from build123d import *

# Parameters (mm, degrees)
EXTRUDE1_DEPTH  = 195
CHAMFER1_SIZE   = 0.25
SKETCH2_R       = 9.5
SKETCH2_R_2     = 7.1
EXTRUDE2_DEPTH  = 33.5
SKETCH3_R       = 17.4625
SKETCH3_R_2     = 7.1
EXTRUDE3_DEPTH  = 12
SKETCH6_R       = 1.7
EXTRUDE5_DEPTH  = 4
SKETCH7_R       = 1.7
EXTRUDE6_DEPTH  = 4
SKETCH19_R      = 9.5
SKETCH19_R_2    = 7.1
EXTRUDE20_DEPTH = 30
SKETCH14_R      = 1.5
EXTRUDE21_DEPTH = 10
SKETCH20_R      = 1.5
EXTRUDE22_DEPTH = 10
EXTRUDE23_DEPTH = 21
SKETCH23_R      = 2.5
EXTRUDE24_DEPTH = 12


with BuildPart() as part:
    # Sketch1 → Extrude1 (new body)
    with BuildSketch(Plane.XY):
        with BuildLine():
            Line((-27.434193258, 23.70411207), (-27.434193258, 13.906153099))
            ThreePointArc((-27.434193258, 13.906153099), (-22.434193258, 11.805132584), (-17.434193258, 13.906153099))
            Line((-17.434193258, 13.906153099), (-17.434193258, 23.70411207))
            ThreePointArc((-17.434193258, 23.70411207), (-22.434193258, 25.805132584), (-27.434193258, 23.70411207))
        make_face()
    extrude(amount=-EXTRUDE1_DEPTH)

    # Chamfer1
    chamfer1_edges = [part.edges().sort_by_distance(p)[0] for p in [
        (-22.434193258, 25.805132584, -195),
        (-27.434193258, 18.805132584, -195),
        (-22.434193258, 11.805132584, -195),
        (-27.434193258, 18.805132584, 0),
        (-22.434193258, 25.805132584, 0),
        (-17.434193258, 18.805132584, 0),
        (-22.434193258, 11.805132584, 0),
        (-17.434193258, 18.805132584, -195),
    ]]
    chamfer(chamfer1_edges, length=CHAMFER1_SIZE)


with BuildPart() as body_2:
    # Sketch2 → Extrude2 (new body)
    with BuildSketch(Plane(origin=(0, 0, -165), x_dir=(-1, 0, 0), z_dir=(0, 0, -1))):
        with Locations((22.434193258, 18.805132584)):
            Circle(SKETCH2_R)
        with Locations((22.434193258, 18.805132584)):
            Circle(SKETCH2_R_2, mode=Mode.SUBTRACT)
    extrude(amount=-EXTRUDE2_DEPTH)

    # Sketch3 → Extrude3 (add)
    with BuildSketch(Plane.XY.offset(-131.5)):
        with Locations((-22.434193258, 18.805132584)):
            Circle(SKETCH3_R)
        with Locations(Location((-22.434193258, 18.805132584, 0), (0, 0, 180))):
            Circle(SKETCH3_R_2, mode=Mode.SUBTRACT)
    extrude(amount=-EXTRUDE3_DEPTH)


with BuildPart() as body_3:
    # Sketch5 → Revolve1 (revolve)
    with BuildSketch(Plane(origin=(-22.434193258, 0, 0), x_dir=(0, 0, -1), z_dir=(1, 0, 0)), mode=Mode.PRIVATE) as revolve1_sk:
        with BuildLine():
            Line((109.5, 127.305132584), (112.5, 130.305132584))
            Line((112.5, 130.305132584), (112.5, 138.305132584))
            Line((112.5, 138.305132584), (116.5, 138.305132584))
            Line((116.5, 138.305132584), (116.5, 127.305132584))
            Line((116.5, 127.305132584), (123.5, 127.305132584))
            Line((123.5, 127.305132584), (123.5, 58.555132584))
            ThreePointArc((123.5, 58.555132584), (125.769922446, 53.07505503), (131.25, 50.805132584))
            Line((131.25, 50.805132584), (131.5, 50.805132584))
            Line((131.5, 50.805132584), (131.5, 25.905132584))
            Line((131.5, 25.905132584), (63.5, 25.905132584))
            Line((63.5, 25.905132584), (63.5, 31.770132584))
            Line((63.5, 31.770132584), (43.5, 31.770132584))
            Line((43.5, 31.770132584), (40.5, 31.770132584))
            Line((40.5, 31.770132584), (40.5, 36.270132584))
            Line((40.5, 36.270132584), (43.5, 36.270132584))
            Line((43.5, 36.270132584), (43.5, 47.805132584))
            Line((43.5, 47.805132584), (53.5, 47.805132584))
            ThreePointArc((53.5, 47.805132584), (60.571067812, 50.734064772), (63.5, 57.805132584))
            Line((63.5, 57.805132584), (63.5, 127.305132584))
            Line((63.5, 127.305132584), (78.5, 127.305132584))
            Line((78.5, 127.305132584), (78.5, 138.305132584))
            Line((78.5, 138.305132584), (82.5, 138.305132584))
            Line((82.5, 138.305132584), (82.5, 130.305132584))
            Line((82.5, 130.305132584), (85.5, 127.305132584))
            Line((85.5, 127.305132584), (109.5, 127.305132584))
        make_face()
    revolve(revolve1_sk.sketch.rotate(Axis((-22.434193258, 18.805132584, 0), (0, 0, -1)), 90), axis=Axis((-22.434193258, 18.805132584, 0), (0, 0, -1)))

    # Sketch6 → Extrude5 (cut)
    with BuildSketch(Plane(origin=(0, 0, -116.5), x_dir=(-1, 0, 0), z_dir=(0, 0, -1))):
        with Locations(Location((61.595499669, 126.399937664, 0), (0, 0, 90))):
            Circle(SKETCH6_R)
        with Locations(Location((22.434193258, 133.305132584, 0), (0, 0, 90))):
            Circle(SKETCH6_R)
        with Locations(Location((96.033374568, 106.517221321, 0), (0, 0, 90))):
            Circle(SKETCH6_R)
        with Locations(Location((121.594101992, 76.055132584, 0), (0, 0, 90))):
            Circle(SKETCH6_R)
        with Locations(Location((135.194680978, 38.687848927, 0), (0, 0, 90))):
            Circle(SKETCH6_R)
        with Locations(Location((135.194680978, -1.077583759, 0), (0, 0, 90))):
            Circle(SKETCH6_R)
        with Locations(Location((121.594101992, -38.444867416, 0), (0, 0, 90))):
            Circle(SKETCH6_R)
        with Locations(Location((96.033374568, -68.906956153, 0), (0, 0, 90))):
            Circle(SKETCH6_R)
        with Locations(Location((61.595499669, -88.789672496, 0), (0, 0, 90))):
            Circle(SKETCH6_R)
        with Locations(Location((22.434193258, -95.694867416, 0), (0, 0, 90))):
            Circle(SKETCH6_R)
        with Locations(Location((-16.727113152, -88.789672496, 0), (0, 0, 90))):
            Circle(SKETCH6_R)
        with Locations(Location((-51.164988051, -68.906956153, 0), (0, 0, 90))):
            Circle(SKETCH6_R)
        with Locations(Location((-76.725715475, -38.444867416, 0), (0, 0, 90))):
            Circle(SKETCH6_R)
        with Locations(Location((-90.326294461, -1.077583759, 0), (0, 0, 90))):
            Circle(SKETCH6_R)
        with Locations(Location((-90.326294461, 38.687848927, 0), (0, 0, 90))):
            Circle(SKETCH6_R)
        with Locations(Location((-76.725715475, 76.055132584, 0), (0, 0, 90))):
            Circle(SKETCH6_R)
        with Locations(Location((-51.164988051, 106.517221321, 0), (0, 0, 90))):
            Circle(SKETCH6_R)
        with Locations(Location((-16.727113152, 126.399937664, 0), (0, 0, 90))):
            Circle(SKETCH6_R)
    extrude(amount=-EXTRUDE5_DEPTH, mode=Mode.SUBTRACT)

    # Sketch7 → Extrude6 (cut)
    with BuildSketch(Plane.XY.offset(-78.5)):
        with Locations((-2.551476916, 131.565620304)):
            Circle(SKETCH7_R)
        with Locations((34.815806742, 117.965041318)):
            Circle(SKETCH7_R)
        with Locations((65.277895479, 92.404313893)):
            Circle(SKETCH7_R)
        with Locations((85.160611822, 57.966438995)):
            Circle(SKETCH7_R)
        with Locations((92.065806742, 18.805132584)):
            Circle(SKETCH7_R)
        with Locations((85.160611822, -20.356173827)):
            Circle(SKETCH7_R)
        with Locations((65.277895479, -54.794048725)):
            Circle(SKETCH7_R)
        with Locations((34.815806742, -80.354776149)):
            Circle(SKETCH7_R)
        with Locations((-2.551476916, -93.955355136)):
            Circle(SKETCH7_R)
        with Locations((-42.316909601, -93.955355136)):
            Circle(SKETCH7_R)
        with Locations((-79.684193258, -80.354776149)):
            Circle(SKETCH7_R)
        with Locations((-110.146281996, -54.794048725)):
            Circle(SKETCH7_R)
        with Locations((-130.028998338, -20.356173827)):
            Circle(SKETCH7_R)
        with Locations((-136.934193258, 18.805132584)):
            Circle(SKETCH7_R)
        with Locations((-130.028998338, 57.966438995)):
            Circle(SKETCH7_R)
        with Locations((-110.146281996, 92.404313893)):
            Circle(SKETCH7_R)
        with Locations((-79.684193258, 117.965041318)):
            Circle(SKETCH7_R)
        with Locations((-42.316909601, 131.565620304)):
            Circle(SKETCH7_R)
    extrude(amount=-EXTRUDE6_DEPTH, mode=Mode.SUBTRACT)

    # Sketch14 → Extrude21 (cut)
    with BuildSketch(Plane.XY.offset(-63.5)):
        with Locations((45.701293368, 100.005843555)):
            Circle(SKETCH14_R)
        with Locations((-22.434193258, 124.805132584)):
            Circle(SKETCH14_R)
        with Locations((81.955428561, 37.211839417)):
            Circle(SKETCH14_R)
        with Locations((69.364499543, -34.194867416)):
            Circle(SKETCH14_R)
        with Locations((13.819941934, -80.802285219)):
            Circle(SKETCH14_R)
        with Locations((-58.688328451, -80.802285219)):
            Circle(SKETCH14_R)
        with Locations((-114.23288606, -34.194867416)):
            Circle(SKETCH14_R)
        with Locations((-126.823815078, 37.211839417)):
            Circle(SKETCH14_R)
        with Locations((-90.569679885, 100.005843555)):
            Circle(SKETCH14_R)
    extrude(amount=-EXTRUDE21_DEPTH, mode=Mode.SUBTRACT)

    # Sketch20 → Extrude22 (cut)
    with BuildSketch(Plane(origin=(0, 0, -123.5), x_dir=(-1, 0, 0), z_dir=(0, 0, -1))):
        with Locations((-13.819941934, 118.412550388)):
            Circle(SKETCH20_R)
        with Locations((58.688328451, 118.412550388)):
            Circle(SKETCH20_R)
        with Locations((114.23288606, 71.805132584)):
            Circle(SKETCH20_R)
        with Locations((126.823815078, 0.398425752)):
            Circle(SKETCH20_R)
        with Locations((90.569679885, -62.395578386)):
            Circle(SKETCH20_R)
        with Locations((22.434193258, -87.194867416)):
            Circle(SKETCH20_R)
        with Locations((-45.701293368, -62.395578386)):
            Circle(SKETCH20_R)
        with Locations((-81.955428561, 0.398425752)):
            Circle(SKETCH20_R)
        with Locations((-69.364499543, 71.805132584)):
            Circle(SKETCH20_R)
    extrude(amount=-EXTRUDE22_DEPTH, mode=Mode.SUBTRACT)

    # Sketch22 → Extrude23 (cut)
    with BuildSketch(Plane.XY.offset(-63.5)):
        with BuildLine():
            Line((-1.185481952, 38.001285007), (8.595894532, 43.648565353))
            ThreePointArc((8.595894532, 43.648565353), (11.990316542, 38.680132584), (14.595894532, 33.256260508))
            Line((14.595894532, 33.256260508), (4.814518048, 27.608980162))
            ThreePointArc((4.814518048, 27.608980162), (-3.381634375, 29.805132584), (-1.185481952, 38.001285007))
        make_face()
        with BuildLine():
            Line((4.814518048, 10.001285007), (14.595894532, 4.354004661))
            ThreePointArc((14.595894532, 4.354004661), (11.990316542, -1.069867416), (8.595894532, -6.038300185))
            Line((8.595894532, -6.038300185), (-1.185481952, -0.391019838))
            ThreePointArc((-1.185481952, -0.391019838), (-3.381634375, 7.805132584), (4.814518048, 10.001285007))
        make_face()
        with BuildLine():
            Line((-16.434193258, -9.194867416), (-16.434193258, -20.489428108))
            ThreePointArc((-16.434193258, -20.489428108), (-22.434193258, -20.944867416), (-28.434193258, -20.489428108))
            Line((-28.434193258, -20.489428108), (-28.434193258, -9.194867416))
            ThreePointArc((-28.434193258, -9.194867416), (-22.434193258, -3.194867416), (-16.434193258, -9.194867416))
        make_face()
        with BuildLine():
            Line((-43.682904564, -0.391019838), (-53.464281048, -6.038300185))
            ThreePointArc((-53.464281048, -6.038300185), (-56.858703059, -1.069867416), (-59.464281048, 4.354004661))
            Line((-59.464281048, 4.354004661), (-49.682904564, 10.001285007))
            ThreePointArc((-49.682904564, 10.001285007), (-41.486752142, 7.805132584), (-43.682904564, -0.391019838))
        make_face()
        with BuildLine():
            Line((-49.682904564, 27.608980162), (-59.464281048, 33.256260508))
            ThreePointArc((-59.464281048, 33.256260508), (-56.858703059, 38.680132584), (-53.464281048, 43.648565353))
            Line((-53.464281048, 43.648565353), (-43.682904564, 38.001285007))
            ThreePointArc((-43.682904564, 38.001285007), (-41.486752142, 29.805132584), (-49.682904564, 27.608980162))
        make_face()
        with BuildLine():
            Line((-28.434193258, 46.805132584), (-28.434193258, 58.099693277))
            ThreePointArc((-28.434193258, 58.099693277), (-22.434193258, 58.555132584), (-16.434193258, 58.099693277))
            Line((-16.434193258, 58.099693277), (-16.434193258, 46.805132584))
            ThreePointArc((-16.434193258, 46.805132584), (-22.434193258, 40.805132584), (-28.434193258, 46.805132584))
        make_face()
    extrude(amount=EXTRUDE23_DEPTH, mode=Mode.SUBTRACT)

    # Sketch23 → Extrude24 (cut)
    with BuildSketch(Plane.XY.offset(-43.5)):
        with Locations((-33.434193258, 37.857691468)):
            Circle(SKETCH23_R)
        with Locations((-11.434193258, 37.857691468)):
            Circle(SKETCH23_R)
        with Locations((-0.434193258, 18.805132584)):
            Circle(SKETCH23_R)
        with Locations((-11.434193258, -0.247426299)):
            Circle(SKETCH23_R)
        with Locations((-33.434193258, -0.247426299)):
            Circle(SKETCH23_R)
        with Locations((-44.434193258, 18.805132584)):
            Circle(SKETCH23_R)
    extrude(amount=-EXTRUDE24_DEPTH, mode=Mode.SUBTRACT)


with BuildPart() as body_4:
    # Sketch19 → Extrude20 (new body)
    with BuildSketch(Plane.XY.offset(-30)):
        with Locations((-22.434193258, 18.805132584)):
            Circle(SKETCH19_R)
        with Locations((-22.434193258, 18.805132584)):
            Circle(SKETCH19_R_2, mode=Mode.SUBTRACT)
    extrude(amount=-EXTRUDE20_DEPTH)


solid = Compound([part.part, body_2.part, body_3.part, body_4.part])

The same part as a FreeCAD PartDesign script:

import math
import FreeCAD as App
import Part
import Sketcher
from FreeCAD import Vector
Q = App.Units.Quantity


def edges_at(feature, points):
    """Names of the edges that pass closest to the given points."""
    edges = feature.Shape.Edges
    near = lambda p: min(range(len(edges)), key=lambda i: edges[i].distToShape(Part.Vertex(*p))[0])
    return sorted({f"Edge{near(p) + 1}" for p in points})

doc = App.newDocument("Part")
params = doc.addObject("Spreadsheet::Sheet", "Params")
for row, (alias, value) in enumerate([
    ("sketch1_radius", "7 mm"),
    ("pad1_length", "195 mm"),
    ("chamfer_size", "0.25 mm"),
    ("sketch2_diameter", "19 mm"),
    ("sketch2_diameter2", "14.2 mm"),
    ("pad2_length", "33.5 mm"),
    ("sketch3_diameter", "14.2 mm"),
    ("pad3_length", "12 mm"),
    ("sketch4_radius", "10 mm"),
    ("sketch4_width", "8 mm"),
    ("sketch4_width2", "11 mm"),
    ("sketch4_height", "24 mm"),
    ("sketch4_height2", "4 mm"),
    ("revolution_angle", "360 deg"),
    ("sketch5_diameter", "3.4 mm"),
    ("pocket1_length", "4 mm"),
    ("sketch6_diameter", "3.4 mm"),
    ("pocket2_length", "4 mm"),
    ("sketch7_diameter", "3 mm"),
    ("pocket3_length", "10 mm"),
    ("sketch8_diameter", "3 mm"),
    ("pocket4_length", "10 mm"),
    ("sketch9_radius", "6 mm"),
    ("sketch9_radius2", "39.75 mm"),
    ("pocket5_length", "21 mm"),
    ("sketch10_diameter", "5 mm"),
    ("pocket6_length", "12 mm"),
    ("sketch11_diameter", "19 mm"),
    ("sketch11_diameter2", "14.2 mm"),
    ("pad4_length", "30 mm"),
], start=1):
    params.set(f"A{row}", alias)
    params.set(f"B{row}", "=" + value)
    params.setAlias(f"B{row}", alias)

body = doc.addObject("PartDesign::Body", "Body")

sketch1 = doc.addObject("Sketcher::SketchObject", "Sketch")
body.addObject(sketch1)
sketch1.AttachmentSupport = (doc.XY_Plane, [""])
sketch1.MapMode = "FlatFace"
sketch1.addGeometry([
    Part.LineSegment(Vector(-27.434193, 23.704112, 0), Vector(-27.434193, 13.906153, 0)),
    Part.ArcOfCircle(Part.Circle(Vector(-22.434193, 18.805133, 0), Vector(0, 0, 1), 7), math.radians(-135.584691), math.radians(-44.415309)),
    Part.LineSegment(Vector(-17.434193, 13.906153, 0), Vector(-17.434193, 23.704112, 0)),
    Part.ArcOfCircle(Part.Circle(Vector(-22.434193, 18.805133, 0), Vector(0, 0, 1), 7), math.radians(44.415309), math.radians(135.584691)),
], False)
sketch1.addConstraint([
    Sketcher.Constraint("Coincident", 0, 2, 1, 1),
    Sketcher.Constraint("Coincident", 1, 2, 2, 1),
    Sketcher.Constraint("Coincident", 2, 2, 3, 1),
    Sketcher.Constraint("Coincident", 3, 2, 0, 1),
    Sketcher.Constraint("Vertical", 0),
    Sketcher.Constraint("Vertical", 2),
    Sketcher.Constraint("Coincident", 3, 3, 1, 3),
    Sketcher.Constraint("Equal", 1, 3),
    Sketcher.Constraint("Horizontal", 0, 2, 1, 2),
    Sketcher.Constraint("Radius", 1, Q("7 mm")),
    Sketcher.Constraint("DistanceX", 0, 2, 1, 3, Q("5 mm")),
    Sketcher.Constraint("DistanceX", 1, 3, -1, 1, Q("22.434193 mm")),
    Sketcher.Constraint("DistanceY", -1, 1, 1, 3, Q("18.805133 mm")),
])
sketch1.setExpression("Constraints[9]", "Params.sketch1_radius")
pad1 = doc.addObject("PartDesign::Pad", "Pad")
body.addObject(pad1)
pad1.Profile = sketch1
pad1.setExpression("Length", "Params.pad1_length")
pad1.Reversed = True
doc.recompute()

chamfer = doc.addObject("PartDesign::Chamfer", "Chamfer")
body.addObject(chamfer)
chamfer.Base = (pad1, edges_at(pad1, [
    (-22.434, 25.805, -195),
    (-27.434, 18.805, -195),
    (-22.434, 11.805, -195),
    (-27.434, 18.805, 0),
    (-22.434, 25.805, 0),
    (-17.434, 18.805, 0),
    (-22.434, 11.805, 0),
    (-17.434, 18.805, -195),
]))
chamfer.setExpression("Size", "Params.chamfer_size")
body2 = doc.addObject("PartDesign::Body", "Body001")

sketch2 = doc.addObject("Sketcher::SketchObject", "Sketch001")
body2.addObject(sketch2)
sketch2.AttachmentSupport = (doc.getObject("XY_Plane001"), [""])
sketch2.MapMode = "FlatFace"
sketch2.AttachmentOffset = App.Placement(Vector(0, 0, -165), App.Rotation())
sketch2.addGeometry([
    Part.Circle(Vector(-22.434193, 18.805133, 0), Vector(0, 0, 1), 9.5),
    Part.Circle(Vector(-22.434193, 18.805133, 0), Vector(0, 0, 1), 7.1),
], False)
sketch2.addConstraint([
    Sketcher.Constraint("Coincident", 1, 3, 0, 3),
    Sketcher.Constraint("Diameter", 0, Q("19 mm")),
    Sketcher.Constraint("Diameter", 1, Q("14.2 mm")),
    Sketcher.Constraint("DistanceX", 0, 3, -1, 1, Q("22.434193 mm")),
    Sketcher.Constraint("DistanceY", -1, 1, 0, 3, Q("18.805133 mm")),
])
sketch2.setExpression("Constraints[1]", "Params.sketch2_diameter")
sketch2.setExpression("Constraints[2]", "Params.sketch2_diameter2")
pad2 = doc.addObject("PartDesign::Pad", "Pad001")
body2.addObject(pad2)
pad2.Profile = sketch2
pad2.setExpression("Length", "Params.pad2_length")

sketch3 = doc.addObject("Sketcher::SketchObject", "Sketch002")
body2.addObject(sketch3)
sketch3.AttachmentSupport = (doc.getObject("XY_Plane001"), [""])
sketch3.MapMode = "FlatFace"
sketch3.AttachmentOffset = App.Placement(Vector(0, 0, -131.5), App.Rotation())
sketch3.addGeometry([
    Part.Circle(Vector(-22.434193, 18.805133, 0), Vector(0, 0, 1), 17.4625),
    Part.Circle(Vector(-22.434193, 18.805133, 0), Vector(0, 0, 1), 7.1),
], False)
sketch3.addConstraint([
    Sketcher.Constraint("Coincident", 1, 3, 0, 3),
    Sketcher.Constraint("Diameter", 1, Q("14.2 mm")),
    Sketcher.Constraint("Diameter", 0, Q("34.925 mm")),
    Sketcher.Constraint("DistanceX", 0, 3, -1, 1, Q("22.434193 mm")),
    Sketcher.Constraint("DistanceY", -1, 1, 0, 3, Q("18.805133 mm")),
])
sketch3.setExpression("Constraints[1]", "Params.sketch3_diameter")
pad3 = doc.addObject("PartDesign::Pad", "Pad002")
body2.addObject(pad3)
pad3.Profile = sketch3
pad3.setExpression("Length", "Params.pad3_length")
pad3.Reversed = True
body3 = doc.addObject("PartDesign::Body", "Body002")

sketch4 = doc.addObject("Sketcher::SketchObject", "Sketch003")
body3.addObject(sketch4)
sketch4.AttachmentSupport = (doc.getObject("YZ_Plane002"), [""])
sketch4.MapMode = "FlatFace"
sketch4.AttachmentOffset = App.Placement(Vector(0, 0, -22.434193), App.Rotation())
sketch4.addGeometry([
    Part.LineSegment(Vector(130.305133, -112.5, 0), Vector(127.305133, -109.5, 0)),
    Part.LineSegment(Vector(127.305133, -109.5, 0), Vector(127.305133, -85.5, 0)),
    Part.LineSegment(Vector(127.305133, -85.5, 0), Vector(130.305133, -82.5, 0)),
    Part.LineSegment(Vector(130.305133, -82.5, 0), Vector(138.305133, -82.5, 0)),
    Part.LineSegment(Vector(138.305133, -82.5, 0), Vector(138.305133, -78.5, 0)),
    Part.LineSegment(Vector(138.305133, -78.5, 0), Vector(127.305133, -78.5, 0)),
    Part.LineSegment(Vector(127.305133, -78.5, 0), Vector(127.305133, -63.5, 0)),
    Part.LineSegment(Vector(127.305133, -63.5, 0), Vector(57.805133, -63.5, 0)),
    Part.ArcOfCircle(Part.Circle(Vector(57.805133, -53.5, 0), Vector(0, 0, 1), 10), math.radians(180), math.radians(270)),
    Part.LineSegment(Vector(47.805133, -53.5, 0), Vector(47.805133, -43.5, 0)),
    Part.LineSegment(Vector(47.805133, -43.5, 0), Vector(36.270133, -43.5, 0)),
    Part.LineSegment(Vector(36.270133, -43.5, 0), Vector(36.270133, -40.5, 0)),
    Part.LineSegment(Vector(36.270133, -40.5, 0), Vector(31.770133, -40.5, 0)),
    Part.LineSegment(Vector(31.770133, -40.5, 0), Vector(31.770133, -63.5, 0)),
    Part.LineSegment(Vector(31.770133, -63.5, 0), Vector(25.905133, -63.5, 0)),
    Part.LineSegment(Vector(25.905133, -63.5, 0), Vector(25.905133, -131.5, 0)),
    Part.LineSegment(Vector(25.905133, -131.5, 0), Vector(50.805133, -131.5, 0)),
    Part.LineSegment(Vector(50.805133, -131.5, 0), Vector(50.805133, -131.25, 0)),
    Part.ArcOfCircle(Part.Circle(Vector(58.555133, -131.25, 0), Vector(0, 0, 1), 7.75), math.radians(90), math.radians(180)),
    Part.LineSegment(Vector(58.555133, -123.5, 0), Vector(127.305133, -123.5, 0)),
    Part.LineSegment(Vector(127.305133, -123.5, 0), Vector(127.305133, -116.5, 0)),
    Part.LineSegment(Vector(127.305133, -116.5, 0), Vector(138.305133, -116.5, 0)),
    Part.LineSegment(Vector(138.305133, -116.5, 0), Vector(138.305133, -112.5, 0)),
    Part.LineSegment(Vector(138.305133, -112.5, 0), Vector(130.305133, -112.5, 0)),
], False)
sketch4.addGeometry(Part.LineSegment(Vector(18.805133, -40.5, 0), Vector(18.805133, -131.5, 0)), True)
sketch4.addConstraint([
    Sketcher.Constraint("Coincident", 0, 2, 1, 1),
    Sketcher.Constraint("Coincident", 1, 2, 2, 1),
    Sketcher.Constraint("Coincident", 2, 2, 3, 1),
    Sketcher.Constraint("Coincident", 3, 2, 4, 1),
    Sketcher.Constraint("Coincident", 4, 2, 5, 1),
    Sketcher.Constraint("Coincident", 5, 2, 6, 1),
    Sketcher.Constraint("Coincident", 6, 2, 7, 1),
    Sketcher.Constraint("Tangent", 7, 2, 8, 2),
    Sketcher.Constraint("Tangent", 8, 1, 9, 1),
    Sketcher.Constraint("Coincident", 9, 2, 10, 1),
    Sketcher.Constraint("Coincident", 10, 2, 11, 1),
    Sketcher.Constraint("Coincident", 11, 2, 12, 1),
    Sketcher.Constraint("Coincident", 12, 2, 13, 1),
    Sketcher.Constraint("Coincident", 13, 2, 14, 1),
    Sketcher.Constraint("Coincident", 14, 2, 15, 1),
    Sketcher.Constraint("Coincident", 15, 2, 16, 1),
    Sketcher.Constraint("Coincident", 16, 2, 17, 1),
    Sketcher.Constraint("Tangent", 17, 2, 18, 2),
    Sketcher.Constraint("Tangent", 18, 1, 19, 1),
    Sketcher.Constraint("Coincident", 19, 2, 20, 1),
    Sketcher.Constraint("Coincident", 20, 2, 21, 1),
    Sketcher.Constraint("Coincident", 21, 2, 22, 1),
    Sketcher.Constraint("Coincident", 22, 2, 23, 1),
    Sketcher.Constraint("Coincident", 23, 2, 0, 1),
    Sketcher.Constraint("Vertical", 1),
    Sketcher.Constraint("Horizontal", 3),
    Sketcher.Constraint("Vertical", 4),
    Sketcher.Constraint("Horizontal", 5),
    Sketcher.Constraint("Vertical", 6),
    Sketcher.Constraint("Horizontal", 7),
    Sketcher.Constraint("Vertical", 9),
    Sketcher.Constraint("Horizontal", 10),
    Sketcher.Constraint("Vertical", 11),
    Sketcher.Constraint("Horizontal", 12),
    Sketcher.Constraint("Vertical", 13),
    Sketcher.Constraint("Horizontal", 14),
    Sketcher.Constraint("Vertical", 15),
    Sketcher.Constraint("Horizontal", 16),
    Sketcher.Constraint("Vertical", 17),
    Sketcher.Constraint("Horizontal", 19),
    Sketcher.Constraint("Vertical", 20),
    Sketcher.Constraint("Horizontal", 21),
    Sketcher.Constraint("Vertical", 22),
    Sketcher.Constraint("Horizontal", 23),
    Sketcher.Constraint("Vertical", 24),
    Sketcher.Constraint("Perpendicular", 0, 2),
    Sketcher.Constraint("Horizontal", 7, 2, 13, 2),
    Sketcher.Constraint("Horizontal", 12, 2, 24, 1),
    Sketcher.Constraint("Horizontal", 16, 2, 24, 2),
    Sketcher.Constraint("Vertical", 1, 2, 5, 2),
    Sketcher.Constraint("Vertical", 6, 2, 19, 2),
    Sketcher.Constraint("Vertical", 4, 2, 21, 2),
    Sketcher.Constraint("Vertical", 2, 2, 23, 2),
    Sketcher.Constraint("Equal", 4, 22),
    Sketcher.Constraint("Equal", 0, 2),
    Sketcher.Constraint("Radius", 8, Q("10 mm")),
    Sketcher.Constraint("DistanceX", 3, 1, 3, 2, Q("8 mm")),
    Sketcher.Constraint("DistanceX", 5, 2, 5, 1, Q("11 mm")),
    Sketcher.Constraint("DistanceY", 1, 1, 1, 2, Q("24 mm")),
    Sketcher.Constraint("DistanceY", 4, 1, 4, 2, Q("4 mm")),
    Sketcher.Constraint("DistanceY", 6, 1, 6, 2, Q("15 mm")),
    Sketcher.Constraint("DistanceY", 9, 1, 9, 2, Q("10 mm")),
    Sketcher.Constraint("DistanceY", 11, 1, 11, 2, Q("3 mm")),
    Sketcher.Constraint("DistanceY", 15, 2, 15, 1, Q("68 mm")),
    Sketcher.Constraint("DistanceY", 20, 1, 20, 2, Q("7 mm")),
    Sketcher.Constraint("Radius", 18, Q("7.75 mm")),
    Sketcher.Constraint("DistanceX", 7, 2, 7, 1, Q("69.5 mm")),
    Sketcher.Constraint("DistanceX", 12, 2, 12, 1, Q("4.5 mm")),
    Sketcher.Constraint("DistanceX", 16, 1, 16, 2, Q("24.9 mm")),
    Sketcher.Constraint("DistanceX", 16, 2, 7, 2, Q("7 mm")),
    Sketcher.Constraint("DistanceX", 24, 2, 16, 2, Q("32 mm")),
    Sketcher.Constraint("DistanceY", 8, 3, -1, 1, Q("53.5 mm")),
    Sketcher.Constraint("DistanceX", 10, 2, 10, 1, Q("11.535 mm")),
    Sketcher.Constraint("DistanceX", -1, 1, 8, 3, Q("57.805133 mm")),
])
sketch4.setExpression("Constraints[55]", "Params.sketch4_radius")
sketch4.setExpression("Constraints[56]", "Params.sketch4_width")
sketch4.setExpression("Constraints[57]", "Params.sketch4_width2")
sketch4.setExpression("Constraints[58]", "Params.sketch4_height")
sketch4.setExpression("Constraints[59]", "Params.sketch4_height2")
revolution = doc.addObject("PartDesign::Revolution", "Revolution")
body3.addObject(revolution)
revolution.Profile = sketch4
revolution.ReferenceAxis = (sketch4, ["Axis0"])
revolution.setExpression("Angle", "Params.revolution_angle")

sketch5 = doc.addObject("Sketcher::SketchObject", "Sketch004")
body3.addObject(sketch5)
sketch5.AttachmentSupport = (doc.getObject("XY_Plane002"), [""])
sketch5.MapMode = "FlatFace"
sketch5.AttachmentOffset = App.Placement(Vector(0, 0, -116.5), App.Rotation())
sketch5.addGeometry([
    Part.Circle(Vector(-61.5955, 126.399938, 0), Vector(0, 0, 1), 1.7),
    Part.Circle(Vector(-22.434193, 133.305133, 0), Vector(0, 0, 1), 1.7),
    Part.Circle(Vector(-96.033375, 106.517221, 0), Vector(0, 0, 1), 1.7),
    Part.Circle(Vector(-121.594102, 76.055133, 0), Vector(0, 0, 1), 1.7),
    Part.Circle(Vector(-135.194681, 38.687849, 0), Vector(0, 0, 1), 1.7),
    Part.Circle(Vector(-135.194681, -1.077584, 0), Vector(0, 0, 1), 1.7),
    Part.Circle(Vector(-121.594102, -38.444867, 0), Vector(0, 0, 1), 1.7),
    Part.Circle(Vector(-96.033375, -68.906956, 0), Vector(0, 0, 1), 1.7),
    Part.Circle(Vector(-61.5955, -88.789672, 0), Vector(0, 0, 1), 1.7),
    Part.Circle(Vector(-22.434193, -95.694867, 0), Vector(0, 0, 1), 1.7),
    Part.Circle(Vector(16.727113, -88.789672, 0), Vector(0, 0, 1), 1.7),
    Part.Circle(Vector(51.164988, -68.906956, 0), Vector(0, 0, 1), 1.7),
    Part.Circle(Vector(76.725715, -38.444867, 0), Vector(0, 0, 1), 1.7),
    Part.Circle(Vector(90.326294, -1.077584, 0), Vector(0, 0, 1), 1.7),
    Part.Circle(Vector(90.326294, 38.687849, 0), Vector(0, 0, 1), 1.7),
    Part.Circle(Vector(76.725715, 76.055133, 0), Vector(0, 0, 1), 1.7),
    Part.Circle(Vector(51.164988, 106.517221, 0), Vector(0, 0, 1), 1.7),
    Part.Circle(Vector(16.727113, 126.399938, 0), Vector(0, 0, 1), 1.7),
], False)
sketch5.addConstraint([
    Sketcher.Constraint("Equal", 0, 1),
    Sketcher.Constraint("Equal", 1, 2),
    Sketcher.Constraint("Equal", 2, 3),
    Sketcher.Constraint("Equal", 3, 4),
    Sketcher.Constraint("Equal", 4, 5),
    Sketcher.Constraint("Equal", 5, 6),
    Sketcher.Constraint("Equal", 6, 7),
    Sketcher.Constraint("Equal", 7, 8),
    Sketcher.Constraint("Equal", 8, 9),
    Sketcher.Constraint("Equal", 9, 10),
    Sketcher.Constraint("Equal", 10, 11),
    Sketcher.Constraint("Equal", 11, 12),
    Sketcher.Constraint("Equal", 12, 13),
    Sketcher.Constraint("Equal", 13, 14),
    Sketcher.Constraint("Equal", 14, 15),
    Sketcher.Constraint("Equal", 15, 16),
    Sketcher.Constraint("Equal", 16, 17),
    Sketcher.Constraint("Horizontal", 8, 3, 10, 3),
    Sketcher.Constraint("Horizontal", 7, 3, 11, 3),
    Sketcher.Constraint("Horizontal", 6, 3, 12, 3),
    Sketcher.Constraint("Horizontal", 5, 3, 13, 3),
    Sketcher.Constraint("Horizontal", 4, 3, 14, 3),
    Sketcher.Constraint("Horizontal", 3, 3, 15, 3),
    Sketcher.Constraint("Horizontal", 2, 3, 16, 3),
    Sketcher.Constraint("Horizontal", 0, 3, 17, 3),
    Sketcher.Constraint("Vertical", 4, 3, 5, 3),
    Sketcher.Constraint("Vertical", 3, 3, 6, 3),
    Sketcher.Constraint("Vertical", 2, 3, 7, 3),
    Sketcher.Constraint("Vertical", 0, 3, 8, 3),
    Sketcher.Constraint("Vertical", 1, 3, 9, 3),
    Sketcher.Constraint("Vertical", 13, 3, 14, 3),
    Sketcher.Constraint("Vertical", 12, 3, 15, 3),
    Sketcher.Constraint("Vertical", 11, 3, 16, 3),
    Sketcher.Constraint("Vertical", 10, 3, 17, 3),
    Sketcher.Constraint("Diameter", 0, Q("3.4 mm")),
    Sketcher.Constraint("DistanceY", 6, 3, 3, 3, Q("114.5 mm")),
    Sketcher.Constraint("DistanceY", 3, 3, 1, 3, Q("57.25 mm")),
    Sketcher.Constraint("DistanceY", 9, 3, 6, 3, Q("57.25 mm")),
    Sketcher.Constraint("DistanceX", 0, 3, -1, 1, Q("61.5955 mm")),
    Sketcher.Constraint("DistanceX", 3, 3, -1, 1, Q("121.594102 mm")),
    Sketcher.Constraint("DistanceY", -1, 1, 2, 3, Q("106.517221 mm")),
    Sketcher.Constraint("DistanceX", 4, 3, -1, 1, Q("135.194681 mm")),
    Sketcher.Constraint("DistanceY", -1, 1, 4, 3, Q("38.687849 mm")),
    Sketcher.Constraint("DistanceX", -1, 1, 11, 3, Q("51.164988 mm")),
    Sketcher.Constraint("DistanceX", 2, 3, 1, 3, Q("73.599181 mm")),
    Sketcher.Constraint("DistanceY", 2, 3, 1, 3, Q("26.787911 mm")),
    Sketcher.Constraint("DistanceX", 3, 3, 1, 3, Q("99.159909 mm")),
    Sketcher.Constraint("DistanceY", 4, 3, 0, 3, Q("87.712089 mm")),
    Sketcher.Constraint("DistanceY", 5, 3, 0, 3, Q("127.477521 mm")),
    Sketcher.Constraint("DistanceY", 7, 3, 6, 3, Q("30.462089 mm")),
    Sketcher.Constraint("DistanceY", 8, 3, 5, 3, Q("87.712089 mm")),
    Sketcher.Constraint("DistanceX", 9, 3, 12, 3, Q("99.159909 mm")),
    Sketcher.Constraint("DistanceX", 12, 3, 13, 3, Q("13.600579 mm")),
    Sketcher.Constraint("DistanceX", 10, 3, 13, 3, Q("73.599181 mm")),
])
sketch5.setExpression("Constraints[34]", "Params.sketch5_diameter")
pocket1 = doc.addObject("PartDesign::Pocket", "Pocket")
body3.addObject(pocket1)
pocket1.Profile = sketch5
pocket1.setExpression("Length", "Params.pocket1_length")
pocket1.Reversed = True

sketch6 = doc.addObject("Sketcher::SketchObject", "Sketch005")
body3.addObject(sketch6)
sketch6.AttachmentSupport = (doc.getObject("XY_Plane002"), [""])
sketch6.MapMode = "FlatFace"
sketch6.AttachmentOffset = App.Placement(Vector(0, 0, -78.5), App.Rotation())
sketch6.addGeometry([
    Part.Circle(Vector(-2.551477, 131.56562, 0), Vector(0, 0, 1), 1.7),
    Part.Circle(Vector(34.815807, 117.965041, 0), Vector(0, 0, 1), 1.7),
    Part.Circle(Vector(65.277895, 92.404314, 0), Vector(0, 0, 1), 1.7),
    Part.Circle(Vector(85.160612, 57.966439, 0), Vector(0, 0, 1), 1.7),
    Part.Circle(Vector(92.065807, 18.805133, 0), Vector(0, 0, 1), 1.7),
    Part.Circle(Vector(85.160612, -20.356174, 0), Vector(0, 0, 1), 1.7),
    Part.Circle(Vector(65.277895, -54.794049, 0), Vector(0, 0, 1), 1.7),
    Part.Circle(Vector(34.815807, -80.354776, 0), Vector(0, 0, 1), 1.7),
    Part.Circle(Vector(-2.551477, -93.955355, 0), Vector(0, 0, 1), 1.7),
    Part.Circle(Vector(-42.31691, -93.955355, 0), Vector(0, 0, 1), 1.7),
    Part.Circle(Vector(-79.684193, -80.354776, 0), Vector(0, 0, 1), 1.7),
    Part.Circle(Vector(-110.146282, -54.794049, 0), Vector(0, 0, 1), 1.7),
    Part.Circle(Vector(-130.028998, -20.356174, 0), Vector(0, 0, 1), 1.7),
    Part.Circle(Vector(-136.934193, 18.805133, 0), Vector(0, 0, 1), 1.7),
    Part.Circle(Vector(-130.028998, 57.966439, 0), Vector(0, 0, 1), 1.7),
    Part.Circle(Vector(-110.146282, 92.404314, 0), Vector(0, 0, 1), 1.7),
    Part.Circle(Vector(-79.684193, 117.965041, 0), Vector(0, 0, 1), 1.7),
    Part.Circle(Vector(-42.31691, 131.56562, 0), Vector(0, 0, 1), 1.7),
], False)
sketch6.addConstraint([
    Sketcher.Constraint("Equal", 0, 1),
    Sketcher.Constraint("Equal", 1, 2),
    Sketcher.Constraint("Equal", 2, 3),
    Sketcher.Constraint("Equal", 3, 4),
    Sketcher.Constraint("Equal", 4, 5),
    Sketcher.Constraint("Equal", 5, 6),
    Sketcher.Constraint("Equal", 6, 7),
    Sketcher.Constraint("Equal", 7, 8),
    Sketcher.Constraint("Equal", 8, 9),
    Sketcher.Constraint("Equal", 9, 10),
    Sketcher.Constraint("Equal", 10, 11),
    Sketcher.Constraint("Equal", 11, 12),
    Sketcher.Constraint("Equal", 12, 13),
    Sketcher.Constraint("Equal", 13, 14),
    Sketcher.Constraint("Equal", 14, 15),
    Sketcher.Constraint("Equal", 15, 16),
    Sketcher.Constraint("Equal", 16, 17),
    Sketcher.Constraint("Horizontal", 8, 3, 9, 3),
    Sketcher.Constraint("Horizontal", 7, 3, 10, 3),
    Sketcher.Constraint("Horizontal", 6, 3, 11, 3),
    Sketcher.Constraint("Horizontal", 5, 3, 12, 3),
    Sketcher.Constraint("Horizontal", 4, 3, 13, 3),
    Sketcher.Constraint("Horizontal", 3, 3, 14, 3),
    Sketcher.Constraint("Horizontal", 2, 3, 15, 3),
    Sketcher.Constraint("Horizontal", 1, 3, 16, 3),
    Sketcher.Constraint("Horizontal", 0, 3, 17, 3),
    Sketcher.Constraint("Vertical", 3, 3, 5, 3),
    Sketcher.Constraint("Vertical", 2, 3, 6, 3),
    Sketcher.Constraint("Vertical", 1, 3, 7, 3),
    Sketcher.Constraint("Vertical", 0, 3, 8, 3),
    Sketcher.Constraint("Vertical", 12, 3, 14, 3),
    Sketcher.Constraint("Vertical", 11, 3, 15, 3),
    Sketcher.Constraint("Vertical", 10, 3, 16, 3),
    Sketcher.Constraint("Vertical", 9, 3, 17, 3),
    Sketcher.Constraint("Diameter", 0, Q("3.4 mm")),
    Sketcher.Constraint("DistanceX", 10, 3, 7, 3, Q("114.5 mm")),
    Sketcher.Constraint("DistanceX", 1, 3, 4, 3, Q("57.25 mm")),
    Sketcher.Constraint("DistanceX", 13, 3, 10, 3, Q("57.25 mm")),
    Sketcher.Constraint("DistanceX", 12, 3, -1, 1, Q("130.028998 mm")),
    Sketcher.Constraint("DistanceY", -1, 1, 0, 3, Q("131.56562 mm")),
    Sketcher.Constraint("DistanceY", -1, 1, 1, 3, Q("117.965041 mm")),
    Sketcher.Constraint("DistanceX", -1, 1, 3, 3, Q("85.160612 mm")),
    Sketcher.Constraint("DistanceY", -1, 1, 3, 3, Q("57.966439 mm")),
    Sketcher.Constraint("DistanceY", 6, 3, -1, 1, Q("54.794049 mm")),
    Sketcher.Constraint("DistanceX", 9, 3, -1, 1, Q("42.31691 mm")),
    Sketcher.Constraint("DistanceX", 11, 3, -1, 1, Q("110.146282 mm")),
    Sketcher.Constraint("DistanceX", 1, 3, 2, 3, Q("30.462089 mm")),
    Sketcher.Constraint("DistanceX", 0, 3, 3, 3, Q("87.712089 mm")),
    Sketcher.Constraint("DistanceY", 4, 3, 2, 3, Q("73.599181 mm")),
    Sketcher.Constraint("DistanceY", 4, 3, 1, 3, Q("99.159909 mm")),
    Sketcher.Constraint("DistanceY", 7, 3, 4, 3, Q("99.159909 mm")),
    Sketcher.Constraint("DistanceY", 8, 3, 7, 3, Q("13.600579 mm")),
    Sketcher.Constraint("DistanceY", 8, 3, 5, 3, Q("73.599181 mm")),
    Sketcher.Constraint("DistanceX", 11, 3, 10, 3, Q("30.462089 mm")),
])
sketch6.setExpression("Constraints[34]", "Params.sketch6_diameter")
pocket2 = doc.addObject("PartDesign::Pocket", "Pocket001")
body3.addObject(pocket2)
pocket2.Profile = sketch6
pocket2.setExpression("Length", "Params.pocket2_length")

sketch7 = doc.addObject("Sketcher::SketchObject", "Sketch006")
body3.addObject(sketch7)
sketch7.AttachmentSupport = (doc.getObject("XY_Plane002"), [""])
sketch7.MapMode = "FlatFace"
sketch7.AttachmentOffset = App.Placement(Vector(0, 0, -63.5), App.Rotation())
sketch7.addGeometry([
    Part.Circle(Vector(45.701293, 100.005844, 0), Vector(0, 0, 1), 1.5),
    Part.Circle(Vector(-22.434193, 124.805133, 0), Vector(0, 0, 1), 1.5),
    Part.Circle(Vector(81.955429, 37.211839, 0), Vector(0, 0, 1), 1.5),
    Part.Circle(Vector(69.3645, -34.194867, 0), Vector(0, 0, 1), 1.5),
    Part.Circle(Vector(13.819942, -80.802285, 0), Vector(0, 0, 1), 1.5),
    Part.Circle(Vector(-58.688328, -80.802285, 0), Vector(0, 0, 1), 1.5),
    Part.Circle(Vector(-114.232886, -34.194867, 0), Vector(0, 0, 1), 1.5),
    Part.Circle(Vector(-126.823815, 37.211839, 0), Vector(0, 0, 1), 1.5),
    Part.Circle(Vector(-90.56968, 100.005844, 0), Vector(0, 0, 1), 1.5),
], False)
sketch7.addConstraint([
    Sketcher.Constraint("Equal", 0, 1),
    Sketcher.Constraint("Equal", 1, 2),
    Sketcher.Constraint("Equal", 2, 3),
    Sketcher.Constraint("Equal", 3, 4),
    Sketcher.Constraint("Equal", 4, 5),
    Sketcher.Constraint("Equal", 5, 6),
    Sketcher.Constraint("Equal", 6, 7),
    Sketcher.Constraint("Equal", 7, 8),
    Sketcher.Constraint("Horizontal", 4, 3, 5, 3),
    Sketcher.Constraint("Horizontal", 3, 3, 6, 3),
    Sketcher.Constraint("Horizontal", 2, 3, 7, 3),
    Sketcher.Constraint("Horizontal", 0, 3, 8, 3),
    Sketcher.Constraint("Diameter", 0, Q("3 mm")),
    Sketcher.Constraint("DistanceY", 3, 3, 1, 3, Q("159 mm")),
    Sketcher.Constraint("DistanceX", -1, 1, 3, 3, Q("69.3645 mm")),
    Sketcher.Constraint("DistanceX", -1, 1, 2, 3, Q("81.955429 mm")),
    Sketcher.Constraint("DistanceY", -1, 1, 2, 3, Q("37.211839 mm")),
    Sketcher.Constraint("DistanceX", -1, 1, 4, 3, Q("13.819942 mm")),
    Sketcher.Constraint("DistanceX", 5, 3, -1, 1, Q("58.688328 mm")),
    Sketcher.Constraint("DistanceX", 8, 3, -1, 1, Q("90.56968 mm")),
    Sketcher.Constraint("DistanceY", 0, 3, 1, 3, Q("24.799289 mm")),
    Sketcher.Constraint("DistanceX", 1, 3, 2, 3, Q("104.389622 mm")),
    Sketcher.Constraint("DistanceX", 4, 3, 0, 3, Q("31.881351 mm")),
    Sketcher.Constraint("DistanceY", 4, 3, 0, 3, Q("180.808129 mm")),
    Sketcher.Constraint("DistanceX", 6, 3, 0, 3, Q("159.934179 mm")),
    Sketcher.Constraint("DistanceX", 7, 3, 6, 3, Q("12.590929 mm")),
    Sketcher.Constraint("DistanceY", -1, 1, 0, 3, Q("100.005844 mm")),
])
sketch7.setExpression("Constraints[12]", "Params.sketch7_diameter")
pocket3 = doc.addObject("PartDesign::Pocket", "Pocket002")
body3.addObject(pocket3)
pocket3.Profile = sketch7
pocket3.setExpression("Length", "Params.pocket3_length")

sketch8 = doc.addObject("Sketcher::SketchObject", "Sketch007")
body3.addObject(sketch8)
sketch8.AttachmentSupport = (doc.getObject("XY_Plane002"), [""])
sketch8.MapMode = "FlatFace"
sketch8.AttachmentOffset = App.Placement(Vector(0, 0, -123.5), App.Rotation())
sketch8.addGeometry([
    Part.Circle(Vector(13.819942, 118.41255, 0), Vector(0, 0, 1), 1.5),
    Part.Circle(Vector(-58.688328, 118.41255, 0), Vector(0, 0, 1), 1.5),
    Part.Circle(Vector(-114.232886, 71.805133, 0), Vector(0, 0, 1), 1.5),
    Part.Circle(Vector(-126.823815, 0.398426, 0), Vector(0, 0, 1), 1.5),
    Part.Circle(Vector(-90.56968, -62.395578, 0), Vector(0, 0, 1), 1.5),
    Part.Circle(Vector(-22.434193, -87.194867, 0), Vector(0, 0, 1), 1.5),
    Part.Circle(Vector(45.701293, -62.395578, 0), Vector(0, 0, 1), 1.5),
    Part.Circle(Vector(81.955429, 0.398426, 0), Vector(0, 0, 1), 1.5),
    Part.Circle(Vector(69.3645, 71.805133, 0), Vector(0, 0, 1), 1.5),
], False)
sketch8.addConstraint([
    Sketcher.Constraint("Equal", 0, 1),
    Sketcher.Constraint("Equal", 1, 2),
    Sketcher.Constraint("Equal", 2, 3),
    Sketcher.Constraint("Equal", 3, 4),
    Sketcher.Constraint("Equal", 4, 5),
    Sketcher.Constraint("Equal", 5, 6),
    Sketcher.Constraint("Equal", 6, 7),
    Sketcher.Constraint("Equal", 7, 8),
    Sketcher.Constraint("Horizontal", 0, 3, 1, 3),
    Sketcher.Constraint("Horizontal", 4, 3, 6, 3),
    Sketcher.Constraint("Horizontal", 3, 3, 7, 3),
    Sketcher.Constraint("Horizontal", 2, 3, 8, 3),
    Sketcher.Constraint("Diameter", 0, Q("3 mm")),
    Sketcher.Constraint("DistanceY", 5, 3, 2, 3, Q("159 mm")),
    Sketcher.Constraint("DistanceX", -1, 1, 8, 3, Q("69.3645 mm")),
    Sketcher.Constraint("DistanceX", -1, 1, 0, 3, Q("13.819942 mm")),
    Sketcher.Constraint("DistanceY", -1, 1, 0, 3, Q("118.41255 mm")),
    Sketcher.Constraint("DistanceX", 1, 3, -1, 1, Q("58.688328 mm")),
    Sketcher.Constraint("DistanceX", 4, 3, -1, 1, Q("90.56968 mm")),
    Sketcher.Constraint("DistanceY", 4, 3, -1, 1, Q("62.395578 mm")),
    Sketcher.Constraint("DistanceX", -1, 1, 7, 3, Q("81.955429 mm")),
    Sketcher.Constraint("DistanceX", 3, 3, 2, 3, Q("12.590929 mm")),
    Sketcher.Constraint("DistanceY", 4, 3, 2, 3, Q("134.200711 mm")),
    Sketcher.Constraint("DistanceX", 3, 3, 5, 3, Q("104.389622 mm")),
    Sketcher.Constraint("DistanceX", 3, 3, 6, 3, Q("172.525108 mm")),
    Sketcher.Constraint("DistanceX", 0, 3, 6, 3, Q("31.881351 mm")),
    Sketcher.Constraint("DistanceY", -1, 1, 3, 3, Q("0.398426 mm")),
])
sketch8.setExpression("Constraints[12]", "Params.sketch8_diameter")
pocket4 = doc.addObject("PartDesign::Pocket", "Pocket003")
body3.addObject(pocket4)
pocket4.Profile = sketch8
pocket4.setExpression("Length", "Params.pocket4_length")
pocket4.Reversed = True

sketch9 = doc.addObject("Sketcher::SketchObject", "Sketch008")
body3.addObject(sketch9)
sketch9.AttachmentSupport = (doc.getObject("XY_Plane002"), [""])
sketch9.MapMode = "FlatFace"
sketch9.AttachmentOffset = App.Placement(Vector(0, 0, -63.5), App.Rotation())
sketch9.addGeometry([
    Part.LineSegment(Vector(8.595895, 43.648565, 0), Vector(-1.185482, 38.001285, 0)),
    Part.ArcOfCircle(Part.Circle(Vector(1.814518, 32.805133, 0), Vector(0, 0, 1), 6), math.radians(120), math.radians(300)),
    Part.LineSegment(Vector(4.814518, 27.60898, 0), Vector(14.595895, 33.256261, 0)),
    Part.ArcOfCircle(Part.Circle(Vector(-22.434193, 18.805133, 0), Vector(0, 0, 1), 39.75), math.radians(21.318398), math.radians(38.681602)),
    Part.LineSegment(Vector(14.595895, 4.354005, 0), Vector(4.814518, 10.001285, 0)),
    Part.ArcOfCircle(Part.Circle(Vector(1.814518, 4.805133, 0), Vector(0, 0, 1), 6), math.radians(60), math.radians(240)),
    Part.LineSegment(Vector(-1.185482, -0.39102, 0), Vector(8.595895, -6.0383, 0)),
    Part.ArcOfCircle(Part.Circle(Vector(-22.434193, 18.805133, 0), Vector(0, 0, 1), 39.75), math.radians(-38.681602), math.radians(-21.318398)),
    Part.LineSegment(Vector(-16.434193, -20.489428, 0), Vector(-16.434193, -9.194867, 0)),
    Part.ArcOfCircle(Part.Circle(Vector(-22.434193, -9.194867, 0), Vector(0, 0, 1), 6), math.radians(0), math.radians(180)),
    Part.LineSegment(Vector(-28.434193, -9.194867, 0), Vector(-28.434193, -20.489428, 0)),
    Part.ArcOfCircle(Part.Circle(Vector(-22.434193, 18.805133, 0), Vector(0, 0, 1), 39.75), math.radians(-98.681602), math.radians(-81.318398)),
    Part.LineSegment(Vector(-53.464281, -6.0383, 0), Vector(-43.682905, -0.39102, 0)),
    Part.ArcOfCircle(Part.Circle(Vector(-46.682905, 4.805133, 0), Vector(0, 0, 1), 6), math.radians(-60), math.radians(120)),
    Part.LineSegment(Vector(-49.682905, 10.001285, 0), Vector(-59.464281, 4.354005, 0)),
    Part.ArcOfCircle(Part.Circle(Vector(-22.434193, 18.805133, 0), Vector(0, 0, 1), 39.75), math.radians(-158.681602), math.radians(-141.318398)),
    Part.LineSegment(Vector(-59.464281, 33.256261, 0), Vector(-49.682905, 27.60898, 0)),
    Part.ArcOfCircle(Part.Circle(Vector(-46.682905, 32.805133, 0), Vector(0, 0, 1), 6), math.radians(-120), math.radians(60)),
    Part.LineSegment(Vector(-43.682905, 38.001285, 0), Vector(-53.464281, 43.648565, 0)),
    Part.ArcOfCircle(Part.Circle(Vector(-22.434193, 18.805133, 0), Vector(0, 0, 1), 39.75), math.radians(141.318398), math.radians(158.681602)),
    Part.LineSegment(Vector(-28.434193, 58.099693, 0), Vector(-28.434193, 46.805133, 0)),
    Part.ArcOfCircle(Part.Circle(Vector(-22.434193, 46.805133, 0), Vector(0, 0, 1), 6), math.radians(180), math.radians(360)),
    Part.LineSegment(Vector(-16.434193, 46.805133, 0), Vector(-16.434193, 58.099693, 0)),
    Part.ArcOfCircle(Part.Circle(Vector(-22.434193, 18.805133, 0), Vector(0, 0, 1), 39.75), math.radians(81.318398), math.radians(98.681602)),
], False)
sketch9.addConstraint([
    Sketcher.Constraint("Tangent", 0, 2, 1, 1),
    Sketcher.Constraint("Tangent", 1, 2, 2, 1),
    Sketcher.Constraint("Coincident", 2, 2, 3, 1),
    Sketcher.Constraint("Coincident", 3, 2, 0, 1),
    Sketcher.Constraint("Tangent", 4, 2, 5, 1),
    Sketcher.Constraint("Tangent", 5, 2, 6, 1),
    Sketcher.Constraint("Coincident", 6, 2, 7, 1),
    Sketcher.Constraint("Coincident", 7, 2, 4, 1),
    Sketcher.Constraint("Tangent", 8, 2, 9, 1),
    Sketcher.Constraint("Tangent", 9, 2, 10, 1),
    Sketcher.Constraint("Coincident", 10, 2, 11, 1),
    Sketcher.Constraint("Coincident", 11, 2, 8, 1),
    Sketcher.Constraint("Tangent", 12, 2, 13, 1),
    Sketcher.Constraint("Tangent", 13, 2, 14, 1),
    Sketcher.Constraint("Coincident", 14, 2, 15, 1),
    Sketcher.Constraint("Coincident", 15, 2, 12, 1),
    Sketcher.Constraint("Tangent", 16, 2, 17, 1),
    Sketcher.Constraint("Tangent", 17, 2, 18, 1),
    Sketcher.Constraint("Coincident", 18, 2, 19, 1),
    Sketcher.Constraint("Coincident", 19, 2, 16, 1),
    Sketcher.Constraint("Tangent", 20, 2, 21, 1),
    Sketcher.Constraint("Tangent", 21, 2, 22, 1),
    Sketcher.Constraint("Coincident", 22, 2, 23, 1),
    Sketcher.Constraint("Coincident", 23, 2, 20, 1),
    Sketcher.Constraint("Vertical", 8),
    Sketcher.Constraint("Vertical", 10),
    Sketcher.Constraint("Vertical", 20),
    Sketcher.Constraint("Vertical", 22),
    Sketcher.Constraint("Coincident", 7, 3, 3, 3),
    Sketcher.Constraint("Coincident", 11, 3, 3, 3),
    Sketcher.Constraint("Coincident", 15, 3, 3, 3),
    Sketcher.Constraint("Coincident", 19, 3, 3, 3),
    Sketcher.Constraint("Coincident", 23, 3, 3, 3),
    Sketcher.Constraint("Equal", 1, 5),
    Sketcher.Constraint("Equal", 3, 7),
    Sketcher.Constraint("Equal", 5, 9),
    Sketcher.Constraint("Equal", 7, 11),
    Sketcher.Constraint("Equal", 9, 13),
    Sketcher.Constraint("Equal", 11, 15),
    Sketcher.Constraint("Equal", 13, 17),
    Sketcher.Constraint("Equal", 15, 19),
    Sketcher.Constraint("Equal", 17, 21),
    Sketcher.Constraint("Equal", 19, 23),
    Sketcher.Constraint("Parallel", 0, 2),
    Sketcher.Constraint("Parallel", 4, 6),
    Sketcher.Constraint("Parallel", 2, 12),
    Sketcher.Constraint("Parallel", 12, 14),
    Sketcher.Constraint("Parallel", 6, 16),
    Sketcher.Constraint("Parallel", 16, 18),
    Sketcher.Constraint("Horizontal", 5, 3, 13, 3),
    Sketcher.Constraint("Horizontal", 1, 3, 17, 3),
    Sketcher.Constraint("Horizontal", 10, 2, 11, 2),
    Sketcher.Constraint("Horizontal", 5, 2, 12, 2),
    Sketcher.Constraint("Horizontal", 7, 2, 14, 2),
    Sketcher.Constraint("Horizontal", 3, 2, 18, 2),
    Sketcher.Constraint("Horizontal", 22, 2, 23, 2),
    Sketcher.Constraint("Vertical", 1, 3, 5, 3),
    Sketcher.Constraint("Vertical", 3, 2, 6, 2),
    Sketcher.Constraint("Equal", 10, 20),
    Sketcher.Constraint("Equal", 0, 2),
    Sketcher.Constraint("Radius", 1, Q("6 mm")),
    Sketcher.Constraint("Angle", 0, Q("-150 deg")),
    Sketcher.Constraint("Radius", 3, Q("39.75 mm")),
    Sketcher.Constraint("DistanceY", 3, 3, 1, 3, Q("14 mm")),
    Sketcher.Constraint("DistanceY", 9, 3, 3, 3, Q("28 mm")),
    Sketcher.Constraint("DistanceY", 6, 2, -1, 1, Q("6.0383 mm")),
    Sketcher.Constraint("DistanceX", -1, 1, 1, 3, Q("1.814518 mm")),
])
sketch9.setExpression("Constraints[60]", "Params.sketch9_radius")
sketch9.setExpression("Constraints[62]", "Params.sketch9_radius2")
pocket5 = doc.addObject("PartDesign::Pocket", "Pocket004")
body3.addObject(pocket5)
pocket5.Profile = sketch9
pocket5.setExpression("Length", "Params.pocket5_length")
pocket5.Reversed = True

sketch10 = doc.addObject("Sketcher::SketchObject", "Sketch009")
body3.addObject(sketch10)
sketch10.AttachmentSupport = (doc.getObject("XY_Plane002"), [""])
sketch10.MapMode = "FlatFace"
sketch10.AttachmentOffset = App.Placement(Vector(0, 0, -43.5), App.Rotation())
sketch10.addGeometry([
    Part.Circle(Vector(-33.434193, 37.857691, 0), Vector(0, 0, 1), 2.5),
    Part.Circle(Vector(-11.434193, 37.857691, 0), Vector(0, 0, 1), 2.5),
    Part.Circle(Vector(-0.434193, 18.805133, 0), Vector(0, 0, 1), 2.5),
    Part.Circle(Vector(-11.434193, -0.247426, 0), Vector(0, 0, 1), 2.5),
    Part.Circle(Vector(-33.434193, -0.247426, 0), Vector(0, 0, 1), 2.5),
    Part.Circle(Vector(-44.434193, 18.805133, 0), Vector(0, 0, 1), 2.5),
], False)
sketch10.addConstraint([
    Sketcher.Constraint("Equal", 0, 1),
    Sketcher.Constraint("Equal", 1, 2),
    Sketcher.Constraint("Equal", 2, 3),
    Sketcher.Constraint("Equal", 3, 4),
    Sketcher.Constraint("Equal", 4, 5),
    Sketcher.Constraint("Horizontal", 0, 3, 1, 3),
    Sketcher.Constraint("Horizontal", 3, 3, 4, 3),
    Sketcher.Constraint("Horizontal", 2, 3, 5, 3),
    Sketcher.Constraint("Vertical", 1, 3, 3, 3),
    Sketcher.Constraint("Vertical", 0, 3, 4, 3),
    Sketcher.Constraint("Diameter", 0, Q("5 mm")),
    Sketcher.Constraint("DistanceX", 0, 3, 1, 3, Q("22 mm")),
    Sketcher.Constraint("DistanceX", 1, 3, 2, 3, Q("11 mm")),
    Sketcher.Constraint("DistanceX", 5, 3, 4, 3, Q("11 mm")),
    Sketcher.Constraint("DistanceY", -1, 1, 0, 3, Q("37.857691 mm")),
    Sketcher.Constraint("DistanceY", 2, 3, 1, 3, Q("19.052559 mm")),
    Sketcher.Constraint("DistanceY", 3, 3, 2, 3, Q("19.052559 mm")),
    Sketcher.Constraint("DistanceX", 0, 3, -1, 1, Q("33.434193 mm")),
])
sketch10.setExpression("Constraints[10]", "Params.sketch10_diameter")
pocket6 = doc.addObject("PartDesign::Pocket", "Pocket005")
body3.addObject(pocket6)
pocket6.Profile = sketch10
pocket6.setExpression("Length", "Params.pocket6_length")
body4 = doc.addObject("PartDesign::Body", "Body003")

sketch11 = doc.addObject("Sketcher::SketchObject", "Sketch010")
body4.addObject(sketch11)
sketch11.AttachmentSupport = (doc.getObject("XY_Plane003"), [""])
sketch11.MapMode = "FlatFace"
sketch11.AttachmentOffset = App.Placement(Vector(0, 0, -30), App.Rotation())
sketch11.addGeometry([
    Part.Circle(Vector(-22.434193, 18.805133, 0), Vector(0, 0, 1), 9.5),
    Part.Circle(Vector(-22.434193, 18.805133, 0), Vector(0, 0, 1), 7.1),
], False)
sketch11.addConstraint([
    Sketcher.Constraint("Coincident", 1, 3, 0, 3),
    Sketcher.Constraint("Diameter", 0, Q("19 mm")),
    Sketcher.Constraint("Diameter", 1, Q("14.2 mm")),
    Sketcher.Constraint("DistanceX", 0, 3, -1, 1, Q("22.434193 mm")),
    Sketcher.Constraint("DistanceY", -1, 1, 0, 3, Q("18.805133 mm")),
])
sketch11.setExpression("Constraints[1]", "Params.sketch11_diameter")
sketch11.setExpression("Constraints[2]", "Params.sketch11_diameter2")
pad4 = doc.addObject("PartDesign::Pad", "Pad003")
body4.addObject(pad4)
pad4.Profile = sketch11
pad4.setExpression("Length", "Params.pad4_length")
pad4.Reversed = True

doc.recompute()
